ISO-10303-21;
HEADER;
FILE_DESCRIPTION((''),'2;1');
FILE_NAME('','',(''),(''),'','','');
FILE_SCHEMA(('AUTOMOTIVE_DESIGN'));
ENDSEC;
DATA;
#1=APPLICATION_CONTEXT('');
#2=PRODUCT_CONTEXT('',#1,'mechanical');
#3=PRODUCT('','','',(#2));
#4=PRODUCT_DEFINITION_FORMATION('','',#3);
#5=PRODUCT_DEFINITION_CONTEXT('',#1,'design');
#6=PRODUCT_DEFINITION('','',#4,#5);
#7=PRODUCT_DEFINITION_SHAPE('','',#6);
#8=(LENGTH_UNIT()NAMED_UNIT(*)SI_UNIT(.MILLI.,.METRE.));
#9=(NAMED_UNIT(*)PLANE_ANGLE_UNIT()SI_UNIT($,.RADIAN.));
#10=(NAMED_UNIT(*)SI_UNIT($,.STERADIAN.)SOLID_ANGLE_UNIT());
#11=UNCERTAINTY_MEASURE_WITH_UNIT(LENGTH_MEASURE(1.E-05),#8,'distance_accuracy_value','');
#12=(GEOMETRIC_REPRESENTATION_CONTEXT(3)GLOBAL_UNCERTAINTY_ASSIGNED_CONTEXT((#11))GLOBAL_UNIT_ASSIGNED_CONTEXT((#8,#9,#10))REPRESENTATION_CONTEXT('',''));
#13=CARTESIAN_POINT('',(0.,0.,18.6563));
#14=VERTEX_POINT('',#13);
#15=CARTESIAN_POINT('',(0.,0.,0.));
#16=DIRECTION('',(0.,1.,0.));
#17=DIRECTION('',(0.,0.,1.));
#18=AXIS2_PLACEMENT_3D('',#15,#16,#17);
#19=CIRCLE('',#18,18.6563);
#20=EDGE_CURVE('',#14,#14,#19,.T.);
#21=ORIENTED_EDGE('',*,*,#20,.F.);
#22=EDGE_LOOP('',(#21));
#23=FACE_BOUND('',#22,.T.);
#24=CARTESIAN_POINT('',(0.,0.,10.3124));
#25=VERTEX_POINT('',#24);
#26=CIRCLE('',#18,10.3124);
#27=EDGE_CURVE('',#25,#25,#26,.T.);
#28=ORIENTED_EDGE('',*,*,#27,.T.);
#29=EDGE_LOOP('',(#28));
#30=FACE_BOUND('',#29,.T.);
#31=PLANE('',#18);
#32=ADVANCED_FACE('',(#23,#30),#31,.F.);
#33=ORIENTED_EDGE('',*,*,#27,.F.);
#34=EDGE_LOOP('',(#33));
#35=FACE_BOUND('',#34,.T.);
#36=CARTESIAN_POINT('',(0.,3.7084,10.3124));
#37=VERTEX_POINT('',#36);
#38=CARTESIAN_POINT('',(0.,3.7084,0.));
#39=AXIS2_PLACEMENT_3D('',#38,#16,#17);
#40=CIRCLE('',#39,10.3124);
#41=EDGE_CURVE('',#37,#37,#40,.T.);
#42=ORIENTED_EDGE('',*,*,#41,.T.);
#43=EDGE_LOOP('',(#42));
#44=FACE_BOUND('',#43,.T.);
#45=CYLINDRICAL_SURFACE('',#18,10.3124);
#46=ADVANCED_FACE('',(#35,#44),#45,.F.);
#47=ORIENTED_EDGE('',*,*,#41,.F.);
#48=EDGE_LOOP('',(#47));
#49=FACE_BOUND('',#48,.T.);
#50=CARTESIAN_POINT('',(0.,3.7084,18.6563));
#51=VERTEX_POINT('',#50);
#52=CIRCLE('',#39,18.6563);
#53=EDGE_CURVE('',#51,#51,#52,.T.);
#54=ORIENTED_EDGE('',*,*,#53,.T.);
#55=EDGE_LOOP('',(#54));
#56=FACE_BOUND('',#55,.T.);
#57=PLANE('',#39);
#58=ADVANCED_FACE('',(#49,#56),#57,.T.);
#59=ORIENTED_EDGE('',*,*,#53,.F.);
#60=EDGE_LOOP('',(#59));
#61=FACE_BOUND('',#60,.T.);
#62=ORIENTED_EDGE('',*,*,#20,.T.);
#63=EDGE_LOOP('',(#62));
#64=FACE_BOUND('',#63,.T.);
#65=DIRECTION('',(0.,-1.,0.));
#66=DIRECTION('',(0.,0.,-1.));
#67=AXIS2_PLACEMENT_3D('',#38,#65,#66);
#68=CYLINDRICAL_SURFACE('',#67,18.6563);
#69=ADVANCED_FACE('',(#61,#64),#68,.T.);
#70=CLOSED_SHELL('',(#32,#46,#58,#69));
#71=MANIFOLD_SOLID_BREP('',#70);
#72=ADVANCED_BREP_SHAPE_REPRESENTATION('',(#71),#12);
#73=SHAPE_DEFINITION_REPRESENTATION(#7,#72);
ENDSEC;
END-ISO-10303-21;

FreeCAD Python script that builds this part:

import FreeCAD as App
import Part
import Sketcher
from FreeCAD import Vector
Q = App.Units.Quantity

doc = App.newDocument("Part")
body = doc.addObject("PartDesign::Body", "Body")

sketch1 = body.newObject("Sketcher::SketchObject", "Sketch")
sketch1.AttachmentSupport = (doc.getObject("XZ_Plane"), [""])
sketch1.MapMode = "FlatFace"
sketch1.addGeometry(Part.Circle(Vector(0, 0, 0), Vector(0, 0, 1), 19), False)
sketch1.addConstraint([
    Sketcher.Constraint("Coincident", 0, 3, -1, 1),
    Sketcher.Constraint("Diameter", 0, Q("1.469 in")),
])
pad1 = body.newObject("PartDesign::Pad", "Pad")
pad1.Profile = sketch1
pad1.Length = Q("0.146 in")
pad1.Reversed = True

sketch2 = body.newObject("Sketcher::SketchObject", "Sketch001")
sketch2.AttachmentSupport = (doc.getObject("XZ_Plane"), [""])
sketch2.MapMode = "FlatFace"
sketch2.AttachmentOffset = App.Placement(Vector(0, 0, -0.146 * 25.4), App.Rotation())
sketch2.addGeometry(Part.Circle(Vector(0, 0, 0), Vector(0, 0, 1), 10), False)
sketch2.addConstraint([
    Sketcher.Constraint("Coincident", 0, 3, -1, 1),
    Sketcher.Constraint("Diameter", 0, Q("0.812 in")),
])
pocket1 = body.newObject("PartDesign::Pocket", "Pocket")
pocket1.Profile = sketch2
pocket1.Type = "ThroughAll"
pocket1.Reversed = True

doc.recompute()
